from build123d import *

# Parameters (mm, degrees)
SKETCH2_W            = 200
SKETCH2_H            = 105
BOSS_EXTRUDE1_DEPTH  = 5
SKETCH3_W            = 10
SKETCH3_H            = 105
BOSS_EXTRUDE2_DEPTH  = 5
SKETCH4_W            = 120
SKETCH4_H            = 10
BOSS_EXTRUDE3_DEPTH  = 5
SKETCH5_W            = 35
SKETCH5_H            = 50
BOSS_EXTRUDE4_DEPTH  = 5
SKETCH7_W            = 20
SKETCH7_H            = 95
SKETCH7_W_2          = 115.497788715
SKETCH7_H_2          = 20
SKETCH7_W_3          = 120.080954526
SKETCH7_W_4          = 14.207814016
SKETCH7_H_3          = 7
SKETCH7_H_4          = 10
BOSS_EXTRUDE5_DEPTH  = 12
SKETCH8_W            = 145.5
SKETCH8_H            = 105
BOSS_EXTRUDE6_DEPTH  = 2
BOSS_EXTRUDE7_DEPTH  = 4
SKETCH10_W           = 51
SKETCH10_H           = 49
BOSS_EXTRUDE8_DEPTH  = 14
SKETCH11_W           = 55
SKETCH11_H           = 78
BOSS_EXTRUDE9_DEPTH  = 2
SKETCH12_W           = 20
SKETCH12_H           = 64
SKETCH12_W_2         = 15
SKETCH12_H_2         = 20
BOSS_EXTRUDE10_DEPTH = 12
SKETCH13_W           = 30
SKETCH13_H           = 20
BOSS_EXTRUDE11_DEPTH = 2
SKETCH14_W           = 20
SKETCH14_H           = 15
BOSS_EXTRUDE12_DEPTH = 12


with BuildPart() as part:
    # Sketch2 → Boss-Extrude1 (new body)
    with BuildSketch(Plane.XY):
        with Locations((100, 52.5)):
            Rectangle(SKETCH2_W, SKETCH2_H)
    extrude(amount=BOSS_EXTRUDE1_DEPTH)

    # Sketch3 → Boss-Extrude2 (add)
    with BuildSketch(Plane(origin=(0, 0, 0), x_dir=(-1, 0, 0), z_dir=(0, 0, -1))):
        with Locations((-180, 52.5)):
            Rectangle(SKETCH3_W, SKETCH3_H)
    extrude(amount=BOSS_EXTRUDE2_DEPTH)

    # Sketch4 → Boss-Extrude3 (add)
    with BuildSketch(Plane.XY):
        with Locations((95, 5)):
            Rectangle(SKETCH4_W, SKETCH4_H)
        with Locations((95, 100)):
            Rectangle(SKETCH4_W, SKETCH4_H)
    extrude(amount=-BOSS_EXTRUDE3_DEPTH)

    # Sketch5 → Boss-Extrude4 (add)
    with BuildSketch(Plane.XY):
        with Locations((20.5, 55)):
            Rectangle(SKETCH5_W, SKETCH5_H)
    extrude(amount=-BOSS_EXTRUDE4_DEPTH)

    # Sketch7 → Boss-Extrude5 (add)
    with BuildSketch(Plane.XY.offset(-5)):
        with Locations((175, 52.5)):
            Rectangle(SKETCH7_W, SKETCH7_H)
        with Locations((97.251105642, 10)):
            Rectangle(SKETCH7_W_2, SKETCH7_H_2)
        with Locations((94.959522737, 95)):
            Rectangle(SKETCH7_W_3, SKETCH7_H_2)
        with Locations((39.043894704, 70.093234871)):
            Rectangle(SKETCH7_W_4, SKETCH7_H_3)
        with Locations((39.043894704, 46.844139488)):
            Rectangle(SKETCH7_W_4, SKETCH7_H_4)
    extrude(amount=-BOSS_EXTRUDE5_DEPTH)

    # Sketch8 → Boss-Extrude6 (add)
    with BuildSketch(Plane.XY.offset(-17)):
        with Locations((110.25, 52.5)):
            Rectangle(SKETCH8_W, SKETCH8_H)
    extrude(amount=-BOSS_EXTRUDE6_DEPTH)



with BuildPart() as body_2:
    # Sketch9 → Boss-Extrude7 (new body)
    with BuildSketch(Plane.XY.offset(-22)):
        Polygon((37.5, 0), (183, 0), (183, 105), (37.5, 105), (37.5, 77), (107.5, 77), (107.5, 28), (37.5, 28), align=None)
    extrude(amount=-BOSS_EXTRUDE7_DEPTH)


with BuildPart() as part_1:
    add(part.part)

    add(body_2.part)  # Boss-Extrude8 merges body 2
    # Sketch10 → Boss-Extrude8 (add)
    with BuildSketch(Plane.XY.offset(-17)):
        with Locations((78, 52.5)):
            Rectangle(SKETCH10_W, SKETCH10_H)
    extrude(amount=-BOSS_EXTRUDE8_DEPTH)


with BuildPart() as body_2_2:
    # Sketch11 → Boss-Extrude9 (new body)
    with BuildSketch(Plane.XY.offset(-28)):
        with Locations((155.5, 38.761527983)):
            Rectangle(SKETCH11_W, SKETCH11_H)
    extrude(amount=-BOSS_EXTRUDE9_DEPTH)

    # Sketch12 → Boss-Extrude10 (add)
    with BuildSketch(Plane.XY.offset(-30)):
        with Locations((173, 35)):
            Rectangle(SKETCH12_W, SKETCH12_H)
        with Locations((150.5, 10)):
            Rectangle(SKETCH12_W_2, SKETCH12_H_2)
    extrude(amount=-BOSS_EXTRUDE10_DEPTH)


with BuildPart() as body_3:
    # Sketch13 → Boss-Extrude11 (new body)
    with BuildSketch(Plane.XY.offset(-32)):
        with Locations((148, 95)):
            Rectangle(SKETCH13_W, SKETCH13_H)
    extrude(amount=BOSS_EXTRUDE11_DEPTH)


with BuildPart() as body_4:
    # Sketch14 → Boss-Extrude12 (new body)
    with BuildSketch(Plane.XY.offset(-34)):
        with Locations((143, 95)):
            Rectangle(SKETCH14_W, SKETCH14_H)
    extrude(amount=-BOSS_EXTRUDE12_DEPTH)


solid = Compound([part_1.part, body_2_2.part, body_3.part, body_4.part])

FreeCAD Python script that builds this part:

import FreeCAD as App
import Part
import Sketcher
from FreeCAD import Vector


def add_polygon(sketch, points):
    """Adds a closed chain of lines whose ends are joined by coincident constraints."""
    first, n = sketch.GeometryCount, len(points)
    for a, b in zip(points, points[1:] + points[:1]):
        sketch.addGeometry(Part.LineSegment(App.Vector(*a, 0), App.Vector(*b, 0)), False)
    for i in range(n):
        sketch.addConstraint(Sketcher.Constraint("Coincident", first + i, 2, first + (i + 1) % n, 1))

doc = App.newDocument("Part")
body = doc.addObject("PartDesign::Body", "Body")

# Sketch on XY plane
sketch1 = body.newObject("Sketcher::SketchObject", "Sketch")
sketch1.AttachmentSupport = (doc.getObject("XY_Plane"), [""])
sketch1.MapMode = "FlatFace"
add_polygon(sketch1, [(0, 105), (0, 0), (200, 0), (200, 105)])  # lines 0-3
sketch1.addConstraint(Sketcher.Constraint("Vertical", 0))
sketch1.addConstraint(Sketcher.Constraint("Horizontal", 1))
sketch1.addConstraint(Sketcher.Constraint("Vertical", 2))
sketch1.addConstraint(Sketcher.Constraint("Horizontal", 3))
sketch1.addConstraint(Sketcher.Constraint("Coincident", 0, 2, -1, 1))
sketch1.addConstraint(Sketcher.Constraint("DistanceX", 1, 1, 1, 2, 200.0))
sketch1.addConstraint(Sketcher.Constraint("DistanceY", 0, 2, 0, 1, 105.0))
pad1 = body.newObject("PartDesign::Pad", "Pad")
pad1.Profile = sketch1
pad1.Length = 5

# Sketch on XY plane
sketch2 = body.newObject("Sketcher::SketchObject", "Sketch001")
sketch2.AttachmentSupport = (doc.getObject("XY_Plane"), [""])
sketch2.MapMode = "FlatFace"
add_polygon(sketch2, [(185, 105), (185, 0), (175, 0), (175, 105)])  # lines 0-3
sketch2.addConstraint(Sketcher.Constraint("Vertical", 0))
sketch2.addConstraint(Sketcher.Constraint("Horizontal", 1))
sketch2.addConstraint(Sketcher.Constraint("Vertical", 2))
sketch2.addConstraint(Sketcher.Constraint("Horizontal", 3))
sketch2.addConstraint(Sketcher.Constraint("PointOnObject", 0, 2, -1))
sketch2.addConstraint(Sketcher.Constraint("DistanceX", 1, 2, 1, 1, 10.0))
sketch2.addConstraint(Sketcher.Constraint("DistanceY", 0, 2, 0, 1, 105.0))
sketch2.addConstraint(Sketcher.Constraint("DistanceX", -1, 1, 0, 2, 185.0))
pad2 = body.newObject("PartDesign::Pad", "Pad001")
pad2.Profile = sketch2
pad2.Length = 5
pad2.Reversed = True

# Sketch on XY plane
sketch3 = body.newObject("Sketcher::SketchObject", "Sketch002")
sketch3.AttachmentSupport = (doc.getObject("XY_Plane"), [""])
sketch3.MapMode = "FlatFace"
add_polygon(sketch3, [(35, 10), (35, 0), (155, 0), (155, 10)])  # lines 0-3
add_polygon(sketch3, [(35, 105), (35, 95), (155, 95), (155, 105)])  # lines 4-7
sketch3.addConstraint(Sketcher.Constraint("Vertical", 0))
sketch3.addConstraint(Sketcher.Constraint("Horizontal", 1))
sketch3.addConstraint(Sketcher.Constraint("Vertical", 2))
sketch3.addConstraint(Sketcher.Constraint("Horizontal", 3))
sketch3.addConstraint(Sketcher.Constraint("Vertical", 4))
sketch3.addConstraint(Sketcher.Constraint("Horizontal", 5))
sketch3.addConstraint(Sketcher.Constraint("Vertical", 6))
sketch3.addConstraint(Sketcher.Constraint("Horizontal", 7))
sketch3.addConstraint(Sketcher.Constraint("PointOnObject", 0, 2, -1))
sketch3.addConstraint(Sketcher.Constraint("Vertical", 3, 2, 4, 2))
sketch3.addConstraint(Sketcher.Constraint("Vertical", 2, 2, 5, 2))
sketch3.addConstraint(Sketcher.Constraint("Equal", 2, 4))
sketch3.addConstraint(Sketcher.Constraint("DistanceX", 1, 1, 1, 2, 120.0))
sketch3.addConstraint(Sketcher.Constraint("DistanceY", 0, 2, 0, 1, 10.0))
sketch3.addConstraint(Sketcher.Constraint("DistanceX", -1, 1, 0, 2, 35.0))
sketch3.addConstraint(Sketcher.Constraint("DistanceY", -1, 1, 4, 2, 95.0))
pad3 = body.newObject("PartDesign::Pad", "Pad002")
pad3.Profile = sketch3
pad3.Length = 5
pad3.Reversed = True

# Sketch on XY plane
sketch4 = body.newObject("Sketcher::SketchObject", "Sketch003")
sketch4.AttachmentSupport = (doc.getObject("XY_Plane"), [""])
sketch4.MapMode = "FlatFace"
add_polygon(sketch4, [(3, 80), (3, 30), (38, 30), (38, 80)])  # lines 0-3
sketch4.addConstraint(Sketcher.Constraint("Vertical", 0))
sketch4.addConstraint(Sketcher.Constraint("Horizontal", 1))
sketch4.addConstraint(Sketcher.Constraint("Vertical", 2))
sketch4.addConstraint(Sketcher.Constraint("Horizontal", 3))
sketch4.addConstraint(Sketcher.Constraint("DistanceX", 1, 1, 1, 2, 35.0))
sketch4.addConstraint(Sketcher.Constraint("DistanceY", 0, 2, 0, 1, 50.0))
sketch4.addConstraint(Sketcher.Constraint("DistanceX", -1, 1, 0, 2, 3.0))
sketch4.addConstraint(Sketcher.Constraint("DistanceY", -1, 1, 0, 2, 30.0))
pad4 = body.newObject("PartDesign::Pad", "Pad003")
pad4.Profile = sketch4
pad4.Length = 5
pad4.Reversed = True

# Sketch on XY plane
sketch5 = body.newObject("Sketcher::SketchObject", "Sketch004")
sketch5.AttachmentSupport = (doc.getObject("XY_Plane"), [""])
sketch5.MapMode = "FlatFace"
sketch5.AttachmentOffset = App.Placement(Vector(0, 0, -5), App.Rotation())
add_polygon(sketch5, [(165, 100), (165, 5), (185, 5), (185, 100)])  # lines 0-3
add_polygon(sketch5, [(40, 20), (40, 0), (155, 0), (155, 20)])  # lines 4-7
add_polygon(sketch5, [(35, 105), (35, 85), (155, 85), (155, 105)])  # lines 8-11
add_polygon(sketch5, [(32, 74), (32, 67), (46, 67), (46, 74)])  # lines 12-15
add_polygon(sketch5, [(32, 52), (32, 42), (46, 42), (46, 52)])  # lines 16-19
sketch5.addConstraint(Sketcher.Constraint("Vertical", 0))
sketch5.addConstraint(Sketcher.Constraint("Horizontal", 1))
sketch5.addConstraint(Sketcher.Constraint("Vertical", 2))
sketch5.addConstraint(Sketcher.Constraint("Horizontal", 3))
sketch5.addConstraint(Sketcher.Constraint("Vertical", 4))
sketch5.addConstraint(Sketcher.Constraint("Horizontal", 5))
sketch5.addConstraint(Sketcher.Constraint("Vertical", 6))
sketch5.addConstraint(Sketcher.Constraint("Horizontal", 7))
sketch5.addConstraint(Sketcher.Constraint("Vertical", 8))
sketch5.addConstraint(Sketcher.Constraint("Horizontal", 9))
sketch5.addConstraint(Sketcher.Constraint("Vertical", 10))
sketch5.addConstraint(Sketcher.Constraint("Horizontal", 11))
sketch5.addConstraint(Sketcher.Constraint("Vertical", 12))
sketch5.addConstraint(Sketcher.Constraint("Horizontal", 13))
sketch5.addConstraint(Sketcher.Constraint("Vertical", 14))
sketch5.addConstraint(Sketcher.Constraint("Horizontal", 15))
sketch5.addConstraint(Sketcher.Constraint("Vertical", 16))
sketch5.addConstraint(Sketcher.Constraint("Horizontal", 17))
sketch5.addConstraint(Sketcher.Constraint("Vertical", 18))
sketch5.addConstraint(Sketcher.Constraint("Horizontal", 19))
sketch5.addConstraint(Sketcher.Constraint("PointOnObject", 4, 2, -1))
sketch5.addConstraint(Sketcher.Constraint("Vertical", 6, 2, 9, 2))
sketch5.addConstraint(Sketcher.Constraint("Vertical", 15, 2, 16, 2))
sketch5.addConstraint(Sketcher.Constraint("Vertical", 14, 2, 17, 2))
sketch5.addConstraint(Sketcher.Constraint("Equal", 3, 4))
sketch5.addConstraint(Sketcher.Constraint("Equal", 6, 8))
sketch5.addConstraint(Sketcher.Constraint("DistanceX", 1, 1, 1, 2, 20.0))
sketch5.addConstraint(Sketcher.Constraint("DistanceY", 0, 2, 0, 1, 95.0))
sketch5.addConstraint(Sketcher.Constraint("DistanceY", 12, 2, 12, 1, 7.0))
sketch5.addConstraint(Sketcher.Constraint("DistanceY", 16, 2, 16, 1, 10.0))
sketch5.addConstraint(Sketcher.Constraint("DistanceX", -1, 1, 0, 2, 165.0))
sketch5.addConstraint(Sketcher.Constraint("DistanceY", -1, 1, 0, 2, 5.0))
sketch5.addConstraint(Sketcher.Constraint("DistanceX", -1, 1, 5, 2, 155.0))
sketch5.addConstraint(Sketcher.Constraint("DistanceY", -1, 1, 8, 2, 85.0))
sketch5.addConstraint(Sketcher.Constraint("DistanceX", 5, 1, 5, 2, 115.497789))
sketch5.addConstraint(Sketcher.Constraint("DistanceX", -1, 1, 13, 2, 46.147802))
sketch5.addConstraint(Sketcher.Constraint("DistanceX", 9, 1, 9, 2, 120.080955))
sketch5.addConstraint(Sketcher.Constraint("DistanceX", 13, 1, 13, 2, 14.207814))
sketch5.addConstraint(Sketcher.Constraint("DistanceY", -1, 1, 16, 2, 41.844139))
sketch5.addConstraint(Sketcher.Constraint("DistanceY", -1, 1, 12, 2, 66.593235))
pad5 = body.newObject("PartDesign::Pad", "Pad004")
pad5.Profile = sketch5
pad5.Length = 12
pad5.Reversed = True

# Sketch on XY plane
sketch6 = body.newObject("Sketcher::SketchObject", "Sketch005")
sketch6.AttachmentSupport = (doc.getObject("XY_Plane"), [""])
sketch6.MapMode = "FlatFace"
sketch6.AttachmentOffset = App.Placement(Vector(0, 0, -17), App.Rotation())
add_polygon(sketch6, [(38, 105), (38, 0), (183, 0), (183, 105)])  # lines 0-3
sketch6.addConstraint(Sketcher.Constraint("Vertical", 0))
sketch6.addConstraint(Sketcher.Constraint("Horizontal", 1))
sketch6.addConstraint(Sketcher.Constraint("Vertical", 2))
sketch6.addConstraint(Sketcher.Constraint("Horizontal", 3))
sketch6.addConstraint(Sketcher.Constraint("PointOnObject", 0, 2, -1))
sketch6.addConstraint(Sketcher.Constraint("DistanceY", 0, 2, 0, 1, 105.0))
sketch6.addConstraint(Sketcher.Constraint("DistanceX", 1, 1, 1, 2, 145.5))
sketch6.addConstraint(Sketcher.Constraint("DistanceX", -1, 1, 1, 2, 183.0))
pad6 = body.newObject("PartDesign::Pad", "Pad005")
pad6.Profile = sketch6
pad6.Length = 2
pad6.Reversed = True
body2 = doc.addObject("PartDesign::Body", "Body001")

# Sketch on XY plane
sketch7 = body2.newObject("Sketcher::SketchObject", "Sketch006")
sketch7.AttachmentSupport = (doc.getObject("XY_Plane001"), [""])
sketch7.MapMode = "FlatFace"
sketch7.AttachmentOffset = App.Placement(Vector(0, 0, -22), App.Rotation())
add_polygon(sketch7, [(38, 0), (183, 0), (183, 105), (38, 105), (38, 77), (108, 77), (108, 28), (38, 28)])  # lines 0-7
sketch7.addConstraint(Sketcher.Constraint("Horizontal", 0))
sketch7.addConstraint(Sketcher.Constraint("Vertical", 1))
sketch7.addConstraint(Sketcher.Constraint("Horizontal", 2))
sketch7.addConstraint(Sketcher.Constraint("Vertical", 3))
sketch7.addConstraint(Sketcher.Constraint("Horizontal", 4))
sketch7.addConstraint(Sketcher.Constraint("Vertical", 5))
sketch7.addConstraint(Sketcher.Constraint("Horizontal", 6))
sketch7.addConstraint(Sketcher.Constraint("Vertical", 7))
sketch7.addConstraint(Sketcher.Constraint("PointOnObject", 0, 2, -1))
sketch7.addConstraint(Sketcher.Constraint("Vertical", 3, 2, 6, 2))
sketch7.addConstraint(Sketcher.Constraint("Equal", 3, 7))
sketch7.addConstraint(Sketcher.Constraint("DistanceX", 4, 1, 4, 2, 70.0))
sketch7.addConstraint(Sketcher.Constraint("DistanceY", 1, 1, 1, 2, 105.0))
sketch7.addConstraint(Sketcher.Constraint("DistanceY", 3, 2, 3, 1, 28.0))
sketch7.addConstraint(Sketcher.Constraint("DistanceX", 0, 1, 0, 2, 145.5))
sketch7.addConstraint(Sketcher.Constraint("DistanceX", -1, 1, 0, 2, 183.0))
pad7 = body2.newObject("PartDesign::Pad", "Pad006")
pad7.Profile = sketch7
pad7.Length = 4
pad7.Reversed = True
body.AllowCompound = True
doc.recompute()

boolean = body.newObject("PartDesign::Boolean", "Boolean")
boolean.Type = "Fuse"
boolean.addObjects([body2])

# Sketch on XY plane
sketch8 = body.newObject("Sketcher::SketchObject", "Sketch007")
sketch8.AttachmentSupport = (doc.getObject("XY_Plane"), [""])
sketch8.MapMode = "FlatFace"
sketch8.AttachmentOffset = App.Placement(Vector(0, 0, -17), App.Rotation())
add_polygon(sketch8, [(52, 77), (52, 28), (104, 28), (104, 77)])  # lines 0-3
sketch8.addConstraint(Sketcher.Constraint("Vertical", 0))
sketch8.addConstraint(Sketcher.Constraint("Horizontal", 1))
sketch8.addConstraint(Sketcher.Constraint("Vertical", 2))
sketch8.addConstraint(Sketcher.Constraint("Horizontal", 3))
sketch8.addConstraint(Sketcher.Constraint("DistanceX", 1, 1, 1, 2, 51.0))
sketch8.addConstraint(Sketcher.Constraint("DistanceY", 0, 2, 0, 1, 49.0))
sketch8.addConstraint(Sketcher.Constraint("DistanceY", -1, 1, 0, 2, 28.0))
sketch8.addConstraint(Sketcher.Constraint("DistanceX", -1, 1, 0, 2, 52.5))
pad8 = body.newObject("PartDesign::Pad", "Pad007")
pad8.Profile = sketch8
pad8.Length = 14
pad8.Reversed = True
body3 = doc.addObject("PartDesign::Body", "Body002")

# Sketch on XY plane
sketch9 = body3.newObject("Sketcher::SketchObject", "Sketch008")
sketch9.AttachmentSupport = (doc.getObject("XY_Plane002"), [""])
sketch9.MapMode = "FlatFace"
sketch9.AttachmentOffset = App.Placement(Vector(0, 0, -28), App.Rotation())
add_polygon(sketch9, [(128, 78), (128, 0), (183, 0), (183, 78)])  # lines 0-3
sketch9.addConstraint(Sketcher.Constraint("Vertical", 0))
sketch9.addConstraint(Sketcher.Constraint("Horizontal", 1))
sketch9.addConstraint(Sketcher.Constraint("Vertical", 2))
sketch9.addConstraint(Sketcher.Constraint("Horizontal", 3))
sketch9.addConstraint(Sketcher.Constraint("DistanceX", 1, 1, 1, 2, 55.0))
sketch9.addConstraint(Sketcher.Constraint("DistanceY", 0, 2, 0, 1, 78.0))
sketch9.addConstraint(Sketcher.Constraint("DistanceX", -1, 1, 0, 2, 128.0))
sketch9.addConstraint(Sketcher.Constraint("DistanceY", 0, 2, -1, 1, 0.238472))
pad9 = body3.newObject("PartDesign::Pad", "Pad008")
pad9.Profile = sketch9
pad9.Length = 2
pad9.Reversed = True

# Sketch on XY plane
sketch10 = body3.newObject("Sketcher::SketchObject", "Sketch009")
sketch10.AttachmentSupport = (doc.getObject("XY_Plane002"), [""])
sketch10.MapMode = "FlatFace"
sketch10.AttachmentOffset = App.Placement(Vector(0, 0, -30), App.Rotation())
add_polygon(sketch10, [(163, 67), (163, 3), (183, 3), (183, 67)])  # lines 0-3
add_polygon(sketch10, [(143, 20), (143, 0), (158, 0), (158, 20)])  # lines 4-7
sketch10.addConstraint(Sketcher.Constraint("Vertical", 0))
sketch10.addConstraint(Sketcher.Constraint("Horizontal", 1))
sketch10.addConstraint(Sketcher.Constraint("Vertical", 2))
sketch10.addConstraint(Sketcher.Constraint("Horizontal", 3))
sketch10.addConstraint(Sketcher.Constraint("Vertical", 4))
sketch10.addConstraint(Sketcher.Constraint("Horizontal", 5))
sketch10.addConstraint(Sketcher.Constraint("Vertical", 6))
sketch10.addConstraint(Sketcher.Constraint("Horizontal", 7))
sketch10.addConstraint(Sketcher.Constraint("PointOnObject", 4, 2, -1))
sketch10.addConstraint(Sketcher.Constraint("Equal", 3, 4))
sketch10.addConstraint(Sketcher.Constraint("DistanceX", 1, 1, 1, 2, 20.0))
sketch10.addConstraint(Sketcher.Constraint("DistanceX", 5, 1, 5, 2, 15.0))
sketch10.addConstraint(Sketcher.Constraint("DistanceY", 0, 2, 0, 1, 64.0))
sketch10.addConstraint(Sketcher.Constraint("DistanceX", -1, 1, 0, 2, 163.0))
sketch10.addConstraint(Sketcher.Constraint("DistanceY", -1, 1, 0, 2, 3.0))
sketch10.addConstraint(Sketcher.Constraint("DistanceX", -1, 1, 4, 2, 143.0))
pad10 = body3.newObject("PartDesign::Pad", "Pad009")
pad10.Profile = sketch10
pad10.Length = 12
pad10.Reversed = True
body4 = doc.addObject("PartDesign::Body", "Body003")

# Sketch on XY plane
sketch11 = body4.newObject("Sketcher::SketchObject", "Sketch010")
sketch11.AttachmentSupport = (doc.getObject("XY_Plane003"), [""])
sketch11.MapMode = "FlatFace"
sketch11.AttachmentOffset = App.Placement(Vector(0, 0, -32), App.Rotation())
add_polygon(sketch11, [(133, 105), (133, 85), (163, 85), (163, 105)])  # lines 0-3
sketch11.addConstraint(Sketcher.Constraint("Vertical", 0))
sketch11.addConstraint(Sketcher.Constraint("Horizontal", 1))
sketch11.addConstraint(Sketcher.Constraint("Vertical", 2))
sketch11.addConstraint(Sketcher.Constraint("Horizontal", 3))
sketch11.addConstraint(Sketcher.Constraint("DistanceX", 1, 1, 1, 2, 30.0))
sketch11.addConstraint(Sketcher.Constraint("DistanceY", 0, 2, 0, 1, 20.0))
sketch11.addConstraint(Sketcher.Constraint("DistanceX", -1, 1, 0, 2, 133.0))
sketch11.addConstraint(Sketcher.Constraint("DistanceY", -1, 1, 0, 2, 85.0))
pad11 = body4.newObject("PartDesign::Pad", "Pad010")
pad11.Profile = sketch11
pad11.Length = 2
body5 = doc.addObject("PartDesign::Body", "Body004")

# Sketch on XY plane
sketch12 = body5.newObject("Sketcher::SketchObject", "Sketch011")
sketch12.AttachmentSupport = (doc.getObject("XY_Plane004"), [""])
sketch12.MapMode = "FlatFace"
sketch12.AttachmentOffset = App.Placement(Vector(0, 0, -34), App.Rotation())
add_polygon(sketch12, [(133, 102), (133, 88), (153, 88), (153, 102)])  # lines 0-3
sketch12.addConstraint(Sketcher.Constraint("Vertical", 0))
sketch12.addConstraint(Sketcher.Constraint("Horizontal", 1))
sketch12.addConstraint(Sketcher.Constraint("Vertical", 2))
sketch12.addConstraint(Sketcher.Constraint("Horizontal", 3))
sketch12.addConstraint(Sketcher.Constraint("DistanceX", 1, 1, 1, 2, 20.0))
sketch12.addConstraint(Sketcher.Constraint("DistanceY", 0, 2, 0, 1, 15.0))
sketch12.addConstraint(Sketcher.Constraint("DistanceX", -1, 1, 0, 2, 133.0))
sketch12.addConstraint(Sketcher.Constraint("DistanceY", -1, 1, 0, 2, 87.5))
pad12 = body5.newObject("PartDesign::Pad", "Pad011")
pad12.Profile = sketch12
pad12.Length = 12
pad12.Reversed = True

doc.recompute()
